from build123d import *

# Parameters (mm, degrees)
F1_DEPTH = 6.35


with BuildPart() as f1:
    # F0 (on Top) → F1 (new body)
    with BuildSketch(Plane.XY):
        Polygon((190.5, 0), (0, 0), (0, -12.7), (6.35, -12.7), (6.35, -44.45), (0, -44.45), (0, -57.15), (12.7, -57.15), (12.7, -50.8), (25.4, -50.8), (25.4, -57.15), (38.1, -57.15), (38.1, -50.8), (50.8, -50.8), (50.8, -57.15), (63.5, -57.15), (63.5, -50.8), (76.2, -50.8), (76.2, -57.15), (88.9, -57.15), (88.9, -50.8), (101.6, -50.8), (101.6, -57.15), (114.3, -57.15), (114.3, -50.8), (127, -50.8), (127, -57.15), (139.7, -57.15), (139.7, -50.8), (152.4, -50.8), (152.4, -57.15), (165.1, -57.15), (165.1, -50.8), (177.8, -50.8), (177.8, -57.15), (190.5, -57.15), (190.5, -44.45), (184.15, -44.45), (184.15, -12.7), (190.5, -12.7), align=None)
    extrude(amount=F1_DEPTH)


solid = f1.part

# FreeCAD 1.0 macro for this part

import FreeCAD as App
import Part
import Sketcher
Q = App.Units.Quantity

doc = App.newDocument("Part")
body = doc.addObject("PartDesign::Body", "Body")

# Sketch on XY plane
sketch1 = body.newObject("Sketcher::SketchObject", "Sketch")
sketch1.AttachmentSupport = (doc.getObject("XY_Plane"), [""])
sketch1.MapMode = "FlatFace"
sketch1.addGeometry(Part.LineSegment(App.Vector(190.5, 0, 0), App.Vector(0, 0, 0)), False)
sketch1.addGeometry(Part.LineSegment(App.Vector(0, 0, 0), App.Vector(0, -12.7, 0)), False)
sketch1.addGeometry(Part.LineSegment(App.Vector(0, -12.7, 0), App.Vector(6.35, -12.7, 0)), False)
sketch1.addGeometry(Part.LineSegment(App.Vector(6.35, -12.7, 0), App.Vector(6.35, -44.45, 0)), False)
sketch1.addGeometry(Part.LineSegment(App.Vector(6.35, -44.45, 0), App.Vector(0, -44.45, 0)), False)
sketch1.addGeometry(Part.LineSegment(App.Vector(0, -44.45, 0), App.Vector(0, -57.15, 0)), False)
sketch1.addGeometry(Part.LineSegment(App.Vector(0, -57.15, 0), App.Vector(12.7, -57.15, 0)), False)
sketch1.addGeometry(Part.LineSegment(App.Vector(12.7, -57.15, 0), App.Vector(12.7, -50.8, 0)), False)
sketch1.addGeometry(Part.LineSegment(App.Vector(12.7, -50.8, 0), App.Vector(25.4, -50.8, 0)), False)
sketch1.addGeometry(Part.LineSegment(App.Vector(25.4, -50.8, 0), App.Vector(25.4, -57.15, 0)), False)
sketch1.addGeometry(Part.LineSegment(App.Vector(25.4, -57.15, 0), App.Vector(38.1, -57.15, 0)), False)
sketch1.addGeometry(Part.LineSegment(App.Vector(38.1, -57.15, 0), App.Vector(38.1, -50.8, 0)), False)
sketch1.addGeometry(Part.LineSegment(App.Vector(38.1, -50.8, 0), App.Vector(50.8, -50.8, 0)), False)
sketch1.addGeometry(Part.LineSegment(App.Vector(50.8, -50.8, 0), App.Vector(50.8, -57.15, 0)), False)
sketch1.addGeometry(Part.LineSegment(App.Vector(50.8, -57.15, 0), App.Vector(63.5, -57.15, 0)), False)
sketch1.addGeometry(Part.LineSegment(App.Vector(63.5, -57.15, 0), App.Vector(63.5, -50.8, 0)), False)
sketch1.addGeometry(Part.LineSegment(App.Vector(63.5, -50.8, 0), App.Vector(76.2, -50.8, 0)), False)
sketch1.addGeometry(Part.LineSegment(App.Vector(76.2, -50.8, 0), App.Vector(76.2, -57.15, 0)), False)
sketch1.addGeometry(Part.LineSegment(App.Vector(76.2, -57.15, 0), App.Vector(88.9, -57.15, 0)), False)
sketch1.addGeometry(Part.LineSegment(App.Vector(88.9, -57.15, 0), App.Vector(88.9, -50.8, 0)), False)
sketch1.addGeometry(Part.LineSegment(App.Vector(88.9, -50.8, 0), App.Vector(101.6, -50.8, 0)), False)
sketch1.addGeometry(Part.LineSegment(App.Vector(101.6, -50.8, 0), App.Vector(101.6, -57.15, 0)), False)
sketch1.addGeometry(Part.LineSegment(App.Vector(101.6, -57.15, 0), App.Vector(114.3, -57.15, 0)), False)
sketch1.addGeometry(Part.LineSegment(App.Vector(114.3, -57.15, 0), App.Vector(114.3, -50.8, 0)), False)
sketch1.addGeometry(Part.LineSegment(App.Vector(114.3, -50.8, 0), App.Vector(127, -50.8, 0)), False)
sketch1.addGeometry(Part.LineSegment(App.Vector(127, -50.8, 0), App.Vector(127, -57.15, 0)), False)
sketch1.addGeometry(Part.LineSegment(App.Vector(127, -57.15, 0), App.Vector(139.7, -57.15, 0)), False)
sketch1.addGeometry(Part.LineSegment(App.Vector(139.7, -57.15, 0), App.Vector(139.7, -50.8, 0)), False)
sketch1.addGeometry(Part.LineSegment(App.Vector(139.7, -50.8, 0), App.Vector(152.4, -50.8, 0)), False)
sketch1.addGeometry(Part.LineSegment(App.Vector(152.4, -50.8, 0), App.Vector(152.4, -57.15, 0)), False)
sketch1.addGeometry(Part.LineSegment(App.Vector(152.4, -57.15, 0), App.Vector(165.1, -57.15, 0)), False)
sketch1.addGeometry(Part.LineSegment(App.Vector(165.1, -57.15, 0), App.Vector(165.1, -50.8, 0)), False)
sketch1.addGeometry(Part.LineSegment(App.Vector(165.1, -50.8, 0), App.Vector(177.8, -50.8, 0)), False)
sketch1.addGeometry(Part.LineSegment(App.Vector(177.8, -50.8, 0), App.Vector(177.8, -57.15, 0)), False)
sketch1.addGeometry(Part.LineSegment(App.Vector(177.8, -57.15, 0), App.Vector(190.5, -57.15, 0)), False)
sketch1.addGeometry(Part.LineSegment(App.Vector(190.5, -57.15, 0), App.Vector(190.5, -44.45, 0)), False)
sketch1.addGeometry(Part.LineSegment(App.Vector(190.5, -44.45, 0), App.Vector(184.15, -44.45, 0)), False)
sketch1.addGeometry(Part.LineSegment(App.Vector(184.15, -44.45, 0), App.Vector(184.15, -12.7, 0)), False)
sketch1.addGeometry(Part.LineSegment(App.Vector(184.15, -12.7, 0), App.Vector(190.5, -12.7, 0)), False)
sketch1.addGeometry(Part.LineSegment(App.Vector(190.5, -12.7, 0), App.Vector(190.5, 0, 0)), False)
sketch1.addConstraint(Sketcher.Constraint("Coincident", 0, 2, 1, 1))
sketch1.addConstraint(Sketcher.Constraint("Coincident", 1, 2, 2, 1))
sketch1.addConstraint(Sketcher.Constraint("Coincident", 2, 2, 3, 1))
sketch1.addConstraint(Sketcher.Constraint("Coincident", 3, 2, 4, 1))
sketch1.addConstraint(Sketcher.Constraint("Coincident", 4, 2, 5, 1))
sketch1.addConstraint(Sketcher.Constraint("Coincident", 5, 2, 6, 1))
sketch1.addConstraint(Sketcher.Constraint("Coincident", 6, 2, 7, 1))
sketch1.addConstraint(Sketcher.Constraint("Coincident", 7, 2, 8, 1))
sketch1.addConstraint(Sketcher.Constraint("Coincident", 8, 2, 9, 1))
sketch1.addConstraint(Sketcher.Constraint("Coincident", 9, 2, 10, 1))
sketch1.addConstraint(Sketcher.Constraint("Coincident", 10, 2, 11, 1))
sketch1.addConstraint(Sketcher.Constraint("Coincident", 11, 2, 12, 1))
sketch1.addConstraint(Sketcher.Constraint("Coincident", 12, 2, 13, 1))
sketch1.addConstraint(Sketcher.Constraint("Coincident", 13, 2, 14, 1))
sketch1.addConstraint(Sketcher.Constraint("Coincident", 14, 2, 15, 1))
sketch1.addConstraint(Sketcher.Constraint("Coincident", 15, 2, 16, 1))
sketch1.addConstraint(Sketcher.Constraint("Coincident", 16, 2, 17, 1))
sketch1.addConstraint(Sketcher.Constraint("Coincident", 17, 2, 18, 1))
sketch1.addConstraint(Sketcher.Constraint("Coincident", 18, 2, 19, 1))
sketch1.addConstraint(Sketcher.Constraint("Coincident", 19, 2, 20, 1))
sketch1.addConstraint(Sketcher.Constraint("Coincident", 20, 2, 21, 1))
sketch1.addConstraint(Sketcher.Constraint("Coincident", 21, 2, 22, 1))
sketch1.addConstraint(Sketcher.Constraint("Coincident", 22, 2, 23, 1))
sketch1.addConstraint(Sketcher.Constraint("Coincident", 23, 2, 24, 1))
sketch1.addConstraint(Sketcher.Constraint("Coincident", 24, 2, 25, 1))
sketch1.addConstraint(Sketcher.Constraint("Coincident", 25, 2, 26, 1))
sketch1.addConstraint(Sketcher.Constraint("Coincident", 26, 2, 27, 1))
sketch1.addConstraint(Sketcher.Constraint("Coincident", 27, 2, 28, 1))
sketch1.addConstraint(Sketcher.Constraint("Coincident", 28, 2, 29, 1))
sketch1.addConstraint(Sketcher.Constraint("Coincident", 29, 2, 30, 1))
sketch1.addConstraint(Sketcher.Constraint("Coincident", 30, 2, 31, 1))
sketch1.addConstraint(Sketcher.Constraint("Coincident", 31, 2, 32, 1))
sketch1.addConstraint(Sketcher.Constraint("Coincident", 32, 2, 33, 1))
sketch1.addConstraint(Sketcher.Constraint("Coincident", 33, 2, 34, 1))
sketch1.addConstraint(Sketcher.Constraint("Coincident", 34, 2, 35, 1))
sketch1.addConstraint(Sketcher.Constraint("Coincident", 35, 2, 36, 1))
sketch1.addConstraint(Sketcher.Constraint("Coincident", 36, 2, 37, 1))
sketch1.addConstraint(Sketcher.Constraint("Coincident", 37, 2, 38, 1))
sketch1.addConstraint(Sketcher.Constraint("Coincident", 38, 2, 39, 1))
sketch1.addConstraint(Sketcher.Constraint("Coincident", 39, 2, 0, 1))
sketch1.addConstraint(Sketcher.Constraint("Horizontal", 0))
sketch1.addConstraint(Sketcher.Constraint("Vertical", 1))
sketch1.addConstraint(Sketcher.Constraint("Horizontal", 2))
sketch1.addConstraint(Sketcher.Constraint("Vertical", 3))
sketch1.addConstraint(Sketcher.Constraint("Horizontal", 4))
sketch1.addConstraint(Sketcher.Constraint("Vertical", 5))
sketch1.addConstraint(Sketcher.Constraint("Horizontal", 6))
sketch1.addConstraint(Sketcher.Constraint("Vertical", 7))
sketch1.addConstraint(Sketcher.Constraint("Horizontal", 8))
sketch1.addConstraint(Sketcher.Constraint("Vertical", 9))
sketch1.addConstraint(Sketcher.Constraint("Horizontal", 10))
sketch1.addConstraint(Sketcher.Constraint("Vertical", 11))
sketch1.addConstraint(Sketcher.Constraint("Horizontal", 12))
sketch1.addConstraint(Sketcher.Constraint("Vertical", 13))
sketch1.addConstraint(Sketcher.Constraint("Horizontal", 14))
sketch1.addConstraint(Sketcher.Constraint("Vertical", 15))
sketch1.addConstraint(Sketcher.Constraint("Horizontal", 16))
sketch1.addConstraint(Sketcher.Constraint("Vertical", 17))
sketch1.addConstraint(Sketcher.Constraint("Horizontal", 18))
sketch1.addConstraint(Sketcher.Constraint("Vertical", 19))
sketch1.addConstraint(Sketcher.Constraint("Horizontal", 20))
sketch1.addConstraint(Sketcher.Constraint("Vertical", 21))
sketch1.addConstraint(Sketcher.Constraint("Horizontal", 22))
sketch1.addConstraint(Sketcher.Constraint("Vertical", 23))
sketch1.addConstraint(Sketcher.Constraint("Horizontal", 24))
sketch1.addConstraint(Sketcher.Constraint("Vertical", 25))
sketch1.addConstraint(Sketcher.Constraint("Horizontal", 26))
sketch1.addConstraint(Sketcher.Constraint("Vertical", 27))
sketch1.addConstraint(Sketcher.Constraint("Horizontal", 28))
sketch1.addConstraint(Sketcher.Constraint("Vertical", 29))
sketch1.addConstraint(Sketcher.Constraint("Horizontal", 30))
sketch1.addConstraint(Sketcher.Constraint("Vertical", 31))
sketch1.addConstraint(Sketcher.Constraint("Horizontal", 32))
sketch1.addConstraint(Sketcher.Constraint("Vertical", 33))
sketch1.addConstraint(Sketcher.Constraint("Horizontal", 34))
sketch1.addConstraint(Sketcher.Constraint("Vertical", 35))
sketch1.addConstraint(Sketcher.Constraint("Horizontal", 36))
sketch1.addConstraint(Sketcher.Constraint("Vertical", 37))
sketch1.addConstraint(Sketcher.Constraint("Horizontal", 38))
sketch1.addConstraint(Sketcher.Constraint("Vertical", 39))
sketch1.addConstraint(Sketcher.Constraint("Coincident", 0, 2, -1, 1))
sketch1.addConstraint(Sketcher.Constraint("PointOnObject", 4, 2, -2))
sketch1.addConstraint(Sketcher.Constraint("Horizontal", 6, 2, 9, 2))
sketch1.addConstraint(Sketcher.Constraint("Horizontal", 8, 2, 11, 2))
sketch1.addConstraint(Sketcher.Constraint("Horizontal", 10, 2, 13, 2))
sketch1.addConstraint(Sketcher.Constraint("Horizontal", 12, 2, 15, 2))
sketch1.addConstraint(Sketcher.Constraint("Horizontal", 14, 2, 17, 2))
sketch1.addConstraint(Sketcher.Constraint("Horizontal", 16, 2, 19, 2))
sketch1.addConstraint(Sketcher.Constraint("Horizontal", 18, 2, 21, 2))
sketch1.addConstraint(Sketcher.Constraint("Horizontal", 20, 2, 23, 2))
sketch1.addConstraint(Sketcher.Constraint("Horizontal", 22, 2, 25, 2))
sketch1.addConstraint(Sketcher.Constraint("Horizontal", 24, 2, 27, 2))
sketch1.addConstraint(Sketcher.Constraint("Horizontal", 26, 2, 29, 2))
sketch1.addConstraint(Sketcher.Constraint("Horizontal", 28, 2, 31, 2))
sketch1.addConstraint(Sketcher.Constraint("Horizontal", 30, 2, 33, 2))
sketch1.addConstraint(Sketcher.Constraint("Horizontal", 4, 2, 35, 2))
sketch1.addConstraint(Sketcher.Constraint("Horizontal", 2, 2, 37, 2))
sketch1.addConstraint(Sketcher.Constraint("Vertical", 35, 2, 38, 2))
sketch1.addConstraint(Sketcher.Constraint("Equal", 6, 8))
sketch1.addConstraint(Sketcher.Constraint("Equal", 8, 10))
sketch1.addConstraint(Sketcher.Constraint("Equal", 10, 12))
sketch1.addConstraint(Sketcher.Constraint("Equal", 12, 14))
sketch1.addConstraint(Sketcher.Constraint("Equal", 14, 16))
sketch1.addConstraint(Sketcher.Constraint("Equal", 16, 18))
sketch1.addConstraint(Sketcher.Constraint("Equal", 18, 20))
sketch1.addConstraint(Sketcher.Constraint("Equal", 20, 22))
sketch1.addConstraint(Sketcher.Constraint("Equal", 22, 24))
sketch1.addConstraint(Sketcher.Constraint("Equal", 24, 26))
sketch1.addConstraint(Sketcher.Constraint("Equal", 26, 28))
sketch1.addConstraint(Sketcher.Constraint("Equal", 28, 30))
sketch1.addConstraint(Sketcher.Constraint("Equal", 30, 32))
sketch1.addConstraint(Sketcher.Constraint("Equal", 32, 34))
sketch1.addConstraint(Sketcher.Constraint("Equal", 4, 36))
sketch1.addConstraint(Sketcher.Constraint("Equal", 34, 1))
sketch1.addConstraint(Sketcher.Constraint("Equal", 1, 5))
sketch1.addConstraint(Sketcher.Constraint("Equal", 38, 7))
sketch1.addConstraint(Sketcher.Constraint("DistanceX", 0, 2, 0, 1, Q("7.5 in")))
sketch1.addConstraint(Sketcher.Constraint("DistanceY", 7, 2, -1, 1, Q("2 in")))
sketch1.addConstraint(Sketcher.Constraint("DistanceX", 2, 1, 2, 2, Q("0.25 in")))
pad1 = body.newObject("PartDesign::Pad", "Pad")
pad1.Profile = sketch1
pad1.Length = Q("0.25 in")

doc.recompute()
